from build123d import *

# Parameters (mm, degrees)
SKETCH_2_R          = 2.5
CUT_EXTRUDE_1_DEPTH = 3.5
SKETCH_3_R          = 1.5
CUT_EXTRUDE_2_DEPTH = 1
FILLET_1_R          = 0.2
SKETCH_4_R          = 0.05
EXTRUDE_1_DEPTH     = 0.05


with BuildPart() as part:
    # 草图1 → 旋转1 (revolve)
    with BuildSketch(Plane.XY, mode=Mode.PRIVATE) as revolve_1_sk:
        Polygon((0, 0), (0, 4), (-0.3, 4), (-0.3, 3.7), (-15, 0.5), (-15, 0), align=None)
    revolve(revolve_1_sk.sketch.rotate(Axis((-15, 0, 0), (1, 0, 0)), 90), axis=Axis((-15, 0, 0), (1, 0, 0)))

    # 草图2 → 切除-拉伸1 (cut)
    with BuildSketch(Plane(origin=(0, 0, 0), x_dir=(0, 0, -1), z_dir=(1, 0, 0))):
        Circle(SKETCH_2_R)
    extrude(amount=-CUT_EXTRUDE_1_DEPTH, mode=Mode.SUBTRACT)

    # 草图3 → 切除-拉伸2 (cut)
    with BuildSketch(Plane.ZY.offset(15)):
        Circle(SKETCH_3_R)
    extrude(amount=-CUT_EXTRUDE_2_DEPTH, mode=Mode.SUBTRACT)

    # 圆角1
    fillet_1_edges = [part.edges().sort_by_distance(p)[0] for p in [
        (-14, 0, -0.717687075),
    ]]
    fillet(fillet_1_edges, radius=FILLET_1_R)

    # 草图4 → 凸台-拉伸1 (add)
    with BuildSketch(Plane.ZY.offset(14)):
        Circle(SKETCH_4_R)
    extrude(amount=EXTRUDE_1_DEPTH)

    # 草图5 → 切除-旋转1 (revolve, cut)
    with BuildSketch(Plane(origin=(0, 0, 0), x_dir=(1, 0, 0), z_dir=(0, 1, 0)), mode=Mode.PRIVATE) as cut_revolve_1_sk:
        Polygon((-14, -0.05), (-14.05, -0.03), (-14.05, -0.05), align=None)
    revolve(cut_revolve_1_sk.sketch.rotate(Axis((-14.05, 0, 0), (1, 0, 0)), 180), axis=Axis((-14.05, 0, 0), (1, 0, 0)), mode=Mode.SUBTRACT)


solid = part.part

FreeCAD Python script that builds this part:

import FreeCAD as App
import Part
import Sketcher


def edges_at(feature, points):
    """Names of the edges that pass closest to the given points."""
    edges = feature.Shape.Edges
    near = lambda p: min(range(len(edges)), key=lambda i: edges[i].distToShape(Part.Vertex(*p))[0])
    return sorted({f"Edge{near(p) + 1}" for p in points})

doc = App.newDocument("Part")
params = doc.addObject("Spreadsheet::Sheet", "Params")
for row, (alias, value) in enumerate([
    ("sketch1_width", "15 mm"),
    ("sketch1_height", "4 mm"),
    ("sketch1_width2", "0.3 mm"),
    ("sketch1_height2", "0.5 mm"),
    ("revolution_angle", "360 deg"),
    ("sketch2_diameter", "5 mm"),
    ("pocket1_length", "3.5 mm"),
    ("sketch3_diameter", "3 mm"),
    ("pocket2_length", "1 mm"),
    ("fillet_radius", "0.2 mm"),
    ("sketch4_diameter", "0.1 mm"),
    ("pad1_length", "0.05 mm"),
    ("sketch5_width", "0.05 mm"),
    ("sketch5_height", "0.02 mm"),
    ("groove_angle", "360 deg"),
], start=1):
    params.set(f"A{row}", alias)
    params.set(f"B{row}", "=" + value)
    params.setAlias(f"B{row}", alias)

body = doc.addObject("PartDesign::Body", "Body")

# Sketch on XY plane
sketch1 = body.newObject("Sketcher::SketchObject", "Sketch")
sketch1.AttachmentSupport = (doc.getObject("XY_Plane"), [""])
sketch1.MapMode = "FlatFace"
sketch1.addGeometry(Part.LineSegment(App.Vector(0, 0, 0), App.Vector(0, 4, 0)), False)
sketch1.addGeometry(Part.LineSegment(App.Vector(0, 4, 0), App.Vector(-0.3, 4, 0)), False)
sketch1.addGeometry(Part.LineSegment(App.Vector(-0.3, 4, 0), App.Vector(-0.3, 3.7, 0)), False)
sketch1.addGeometry(Part.LineSegment(App.Vector(-0.3, 3.7, 0), App.Vector(-15, 0.5, 0)), False)
sketch1.addGeometry(Part.LineSegment(App.Vector(-15, 0.5, 0), App.Vector(-15, 0, 0)), False)
sketch1.addGeometry(Part.LineSegment(App.Vector(-15, 0, 0), App.Vector(0, 0, 0)), False)
sketch1.addConstraint(Sketcher.Constraint("Coincident", 0, 2, 1, 1))
sketch1.addConstraint(Sketcher.Constraint("Coincident", 1, 2, 2, 1))
sketch1.addConstraint(Sketcher.Constraint("Coincident", 2, 2, 3, 1))
sketch1.addConstraint(Sketcher.Constraint("Coincident", 3, 2, 4, 1))
sketch1.addConstraint(Sketcher.Constraint("Coincident", 4, 2, 5, 1))
sketch1.addConstraint(Sketcher.Constraint("Coincident", 5, 2, 0, 1))
sketch1.addConstraint(Sketcher.Constraint("Vertical", 0))
sketch1.addConstraint(Sketcher.Constraint("Horizontal", 1))
sketch1.addConstraint(Sketcher.Constraint("Vertical", 2))
sketch1.addConstraint(Sketcher.Constraint("Vertical", 4))
sketch1.addConstraint(Sketcher.Constraint("Horizontal", 5))
sketch1.addConstraint(Sketcher.Constraint("Coincident", 5, 2, -1, 1))
sketch1.addConstraint(Sketcher.Constraint("Equal", 1, 2))
sketch1.addConstraint(Sketcher.Constraint("DistanceX", 5, 1, 5, 2, 15.0))
sketch1.addConstraint(Sketcher.Constraint("DistanceY", 0, 1, 0, 2, 4.0))
sketch1.addConstraint(Sketcher.Constraint("DistanceX", 1, 2, 1, 1, 0.3))
sketch1.addConstraint(Sketcher.Constraint("DistanceY", 4, 2, 4, 1, 0.5))
sketch1.setExpression("Constraints[13]", "Params.sketch1_width")
sketch1.setExpression("Constraints[14]", "Params.sketch1_height")
sketch1.setExpression("Constraints[15]", "Params.sketch1_width2")
sketch1.setExpression("Constraints[16]", "Params.sketch1_height2")
revolution = body.newObject("PartDesign::Revolution", "Revolution")
revolution.Profile = sketch1
revolution.ReferenceAxis = (sketch1, ["H_Axis"])
revolution.setExpression("Angle", "Params.revolution_angle")

# Sketch on YZ plane
sketch2 = body.newObject("Sketcher::SketchObject", "Sketch001")
sketch2.AttachmentSupport = (doc.getObject("YZ_Plane"), [""])
sketch2.MapMode = "FlatFace"
sketch2.addGeometry(Part.Circle(App.Vector(0, 0, 0), App.Vector(0, 0, 1), 2.5), False)
sketch2.addConstraint(Sketcher.Constraint("Coincident", 0, 3, -1, 1))
sketch2.addConstraint(Sketcher.Constraint("Diameter", 0, 5.0))
sketch2.setExpression("Constraints[1]", "Params.sketch2_diameter")
pocket1 = body.newObject("PartDesign::Pocket", "Pocket")
pocket1.Profile = sketch2
pocket1.setExpression("Length", "Params.pocket1_length")

# Sketch on YZ plane
sketch3 = body.newObject("Sketcher::SketchObject", "Sketch002")
sketch3.AttachmentSupport = (doc.getObject("YZ_Plane"), [""])
sketch3.MapMode = "FlatFace"
sketch3.AttachmentOffset = App.Placement(App.Vector(0, 0, -15), App.Rotation())
sketch3.addGeometry(Part.Circle(App.Vector(0, 0, 0), App.Vector(0, 0, 1), 1.5), False)
sketch3.addConstraint(Sketcher.Constraint("Coincident", 0, 3, -1, 1))
sketch3.addConstraint(Sketcher.Constraint("Diameter", 0, 3.0))
sketch3.setExpression("Constraints[1]", "Params.sketch3_diameter")
pocket2 = body.newObject("PartDesign::Pocket", "Pocket001")
pocket2.Profile = sketch3
pocket2.setExpression("Length", "Params.pocket2_length")
pocket2.Reversed = True
doc.recompute()

fillet = body.newObject("PartDesign::Fillet", "Fillet")
fillet.Base = (pocket2, edges_at(pocket2, [(-14, 0, -0.718)]))
fillet.setExpression("Radius", "Params.fillet_radius")

# Sketch on YZ plane
sketch4 = body.newObject("Sketcher::SketchObject", "Sketch003")
sketch4.AttachmentSupport = (doc.getObject("YZ_Plane"), [""])
sketch4.MapMode = "FlatFace"
sketch4.AttachmentOffset = App.Placement(App.Vector(0, 0, -14), App.Rotation())
sketch4.addGeometry(Part.Circle(App.Vector(0, 0, 0), App.Vector(0, 0, 1), 0.05), False)
sketch4.addConstraint(Sketcher.Constraint("Coincident", 0, 3, -1, 1))
sketch4.addConstraint(Sketcher.Constraint("Diameter", 0, 0.1))
sketch4.setExpression("Constraints[1]", "Params.sketch4_diameter")
pad1 = body.newObject("PartDesign::Pad", "Pad")
pad1.Profile = sketch4
pad1.setExpression("Length", "Params.pad1_length")
pad1.Reversed = True

# Sketch on XZ plane
sketch5 = body.newObject("Sketcher::SketchObject", "Sketch004")
sketch5.AttachmentSupport = (doc.getObject("XZ_Plane"), [""])
sketch5.MapMode = "FlatFace"
sketch5.addGeometry(Part.LineSegment(App.Vector(-14, 0.05, 0), App.Vector(-14.05, 0.03, 0)), False)
sketch5.addGeometry(Part.LineSegment(App.Vector(-14.05, 0.03, 0), App.Vector(-14.05, 0.05, 0)), False)
sketch5.addGeometry(Part.LineSegment(App.Vector(-14.05, 0.05, 0), App.Vector(-14, 0.05, 0)), False)
sketch5.addConstraint(Sketcher.Constraint("Coincident", 0, 2, 1, 1))
sketch5.addConstraint(Sketcher.Constraint("Coincident", 1, 2, 2, 1))
sketch5.addConstraint(Sketcher.Constraint("Coincident", 2, 2, 0, 1))
sketch5.addConstraint(Sketcher.Constraint("Vertical", 1))
sketch5.addConstraint(Sketcher.Constraint("Horizontal", 2))
sketch5.addConstraint(Sketcher.Constraint("DistanceX", 2, 2, -1, 1, 14.0))
sketch5.addConstraint(Sketcher.Constraint("DistanceX", 2, 1, 2, 2, 0.05))
sketch5.addConstraint(Sketcher.Constraint("DistanceY", 1, 1, 1, 2, 0.02))
sketch5.addConstraint(Sketcher.Constraint("DistanceY", -1, 1, 0, 2, 0.03))
sketch5.setExpression("Constraints[6]", "Params.sketch5_width")
sketch5.setExpression("Constraints[7]", "Params.sketch5_height")
groove = body.newObject("PartDesign::Groove", "Groove")
groove.Profile = sketch5
groove.ReferenceAxis = (sketch5, ["H_Axis"])
groove.setExpression("Angle", "Params.groove_angle")

doc.recompute()
